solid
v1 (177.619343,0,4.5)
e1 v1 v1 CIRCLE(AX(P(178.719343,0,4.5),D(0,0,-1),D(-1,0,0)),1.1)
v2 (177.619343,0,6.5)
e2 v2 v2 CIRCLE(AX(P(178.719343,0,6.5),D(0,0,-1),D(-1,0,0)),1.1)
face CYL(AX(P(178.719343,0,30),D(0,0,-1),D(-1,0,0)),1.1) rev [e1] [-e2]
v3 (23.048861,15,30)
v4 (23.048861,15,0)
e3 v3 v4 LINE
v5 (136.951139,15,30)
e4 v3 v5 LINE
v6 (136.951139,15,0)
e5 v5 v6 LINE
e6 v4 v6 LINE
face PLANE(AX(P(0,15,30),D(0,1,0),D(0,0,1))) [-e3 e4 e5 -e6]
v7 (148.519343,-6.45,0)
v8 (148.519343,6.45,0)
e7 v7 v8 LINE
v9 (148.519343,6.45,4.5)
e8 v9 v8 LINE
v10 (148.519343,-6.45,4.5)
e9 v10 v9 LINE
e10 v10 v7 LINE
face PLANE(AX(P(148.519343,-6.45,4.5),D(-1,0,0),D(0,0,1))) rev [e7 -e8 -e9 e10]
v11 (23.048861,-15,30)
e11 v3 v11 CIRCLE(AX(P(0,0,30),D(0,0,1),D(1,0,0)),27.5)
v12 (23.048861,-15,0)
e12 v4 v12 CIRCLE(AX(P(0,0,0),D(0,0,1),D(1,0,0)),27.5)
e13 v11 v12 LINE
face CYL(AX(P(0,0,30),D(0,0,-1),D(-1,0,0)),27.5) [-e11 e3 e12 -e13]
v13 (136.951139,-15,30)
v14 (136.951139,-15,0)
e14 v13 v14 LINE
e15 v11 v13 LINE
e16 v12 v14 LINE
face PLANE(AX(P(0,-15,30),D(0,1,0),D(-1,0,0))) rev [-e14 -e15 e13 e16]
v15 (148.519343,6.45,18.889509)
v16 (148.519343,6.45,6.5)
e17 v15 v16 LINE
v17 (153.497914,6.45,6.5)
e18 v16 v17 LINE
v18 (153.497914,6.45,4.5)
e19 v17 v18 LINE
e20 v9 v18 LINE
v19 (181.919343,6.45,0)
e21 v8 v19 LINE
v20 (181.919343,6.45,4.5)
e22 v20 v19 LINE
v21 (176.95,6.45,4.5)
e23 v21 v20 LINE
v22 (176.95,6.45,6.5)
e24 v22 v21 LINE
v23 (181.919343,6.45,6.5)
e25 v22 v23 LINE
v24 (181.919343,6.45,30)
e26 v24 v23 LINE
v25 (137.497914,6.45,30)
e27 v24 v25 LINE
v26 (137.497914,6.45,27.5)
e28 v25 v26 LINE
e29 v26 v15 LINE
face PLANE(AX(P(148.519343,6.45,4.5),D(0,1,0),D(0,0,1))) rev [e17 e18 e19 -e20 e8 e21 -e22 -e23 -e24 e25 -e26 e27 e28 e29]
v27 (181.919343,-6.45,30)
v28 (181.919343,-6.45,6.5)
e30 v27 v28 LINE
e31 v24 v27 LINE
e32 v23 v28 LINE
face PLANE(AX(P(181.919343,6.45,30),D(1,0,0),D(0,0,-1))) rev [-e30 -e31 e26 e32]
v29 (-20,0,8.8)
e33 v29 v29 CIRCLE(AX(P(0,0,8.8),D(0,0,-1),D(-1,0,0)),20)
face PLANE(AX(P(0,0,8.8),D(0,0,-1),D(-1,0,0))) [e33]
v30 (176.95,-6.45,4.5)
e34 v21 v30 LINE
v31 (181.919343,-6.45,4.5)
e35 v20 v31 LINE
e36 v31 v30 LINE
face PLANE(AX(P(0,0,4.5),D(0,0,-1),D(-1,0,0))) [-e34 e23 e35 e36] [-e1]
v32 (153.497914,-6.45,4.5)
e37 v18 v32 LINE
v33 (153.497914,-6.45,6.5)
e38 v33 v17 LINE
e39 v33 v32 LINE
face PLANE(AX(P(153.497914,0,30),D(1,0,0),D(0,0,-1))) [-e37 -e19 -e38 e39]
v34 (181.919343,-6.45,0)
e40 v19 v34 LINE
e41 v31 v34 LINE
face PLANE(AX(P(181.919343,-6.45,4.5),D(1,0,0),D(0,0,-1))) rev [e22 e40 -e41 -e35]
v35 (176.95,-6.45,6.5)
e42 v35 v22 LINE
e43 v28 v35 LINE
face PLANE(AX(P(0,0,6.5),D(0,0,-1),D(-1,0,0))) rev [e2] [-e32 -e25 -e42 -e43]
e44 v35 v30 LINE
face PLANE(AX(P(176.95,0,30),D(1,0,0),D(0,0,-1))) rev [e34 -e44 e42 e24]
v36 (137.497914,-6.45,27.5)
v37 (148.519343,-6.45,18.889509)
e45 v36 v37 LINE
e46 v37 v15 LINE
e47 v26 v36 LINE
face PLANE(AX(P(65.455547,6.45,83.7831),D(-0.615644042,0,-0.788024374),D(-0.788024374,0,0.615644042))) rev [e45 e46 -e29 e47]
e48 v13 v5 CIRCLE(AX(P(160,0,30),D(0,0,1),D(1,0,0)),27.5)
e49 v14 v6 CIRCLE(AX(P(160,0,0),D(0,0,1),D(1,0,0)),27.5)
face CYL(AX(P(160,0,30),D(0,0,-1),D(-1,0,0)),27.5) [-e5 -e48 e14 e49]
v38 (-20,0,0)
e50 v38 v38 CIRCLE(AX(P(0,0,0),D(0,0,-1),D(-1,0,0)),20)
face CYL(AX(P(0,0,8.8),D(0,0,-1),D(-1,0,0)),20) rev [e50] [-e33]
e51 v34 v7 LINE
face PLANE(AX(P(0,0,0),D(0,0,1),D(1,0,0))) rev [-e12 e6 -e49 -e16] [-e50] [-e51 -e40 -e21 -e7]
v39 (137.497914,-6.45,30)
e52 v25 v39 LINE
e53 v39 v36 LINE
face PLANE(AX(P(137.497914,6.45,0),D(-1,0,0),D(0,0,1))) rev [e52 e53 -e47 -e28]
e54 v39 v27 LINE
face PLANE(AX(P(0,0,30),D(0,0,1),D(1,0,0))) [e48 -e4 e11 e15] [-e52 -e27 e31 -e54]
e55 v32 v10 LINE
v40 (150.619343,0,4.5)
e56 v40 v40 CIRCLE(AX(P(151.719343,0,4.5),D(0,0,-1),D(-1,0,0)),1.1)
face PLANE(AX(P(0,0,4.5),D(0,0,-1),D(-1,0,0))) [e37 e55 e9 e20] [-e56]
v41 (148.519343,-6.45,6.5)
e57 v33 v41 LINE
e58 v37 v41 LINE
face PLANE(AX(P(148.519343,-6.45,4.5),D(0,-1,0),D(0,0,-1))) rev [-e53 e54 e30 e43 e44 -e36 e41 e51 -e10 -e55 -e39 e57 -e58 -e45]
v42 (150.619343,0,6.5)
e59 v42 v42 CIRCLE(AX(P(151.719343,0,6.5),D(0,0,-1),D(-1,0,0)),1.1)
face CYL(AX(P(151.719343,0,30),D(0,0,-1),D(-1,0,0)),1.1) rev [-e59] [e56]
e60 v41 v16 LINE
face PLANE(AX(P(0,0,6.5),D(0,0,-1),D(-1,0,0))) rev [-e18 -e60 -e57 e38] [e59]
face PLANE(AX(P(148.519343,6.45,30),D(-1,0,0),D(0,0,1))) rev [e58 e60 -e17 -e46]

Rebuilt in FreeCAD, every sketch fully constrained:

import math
import FreeCAD as App
import Part
import Sketcher

V = App.Vector
Q = App.Units.Quantity

doc = App.newDocument("Part")
params = doc.addObject("Spreadsheet::Sheet", "Params")
for row, (alias, value) in enumerate([
    ("sketch1_radius", "27.5 mm"),
    ("pad1_length", "30 mm"),
    ("sketch2_width", "33.4 mm"),
    ("sketch2_height", "12.9 mm"),
    ("pocket1_length", "4.5 mm"),
    ("sketch3_height", "12.9 mm"),
    ("sketch4_width", "16 mm"),
    ("sketch4_height", "15 mm"),
    ("sketch4_height2", "2.5 mm"),
    ("pocket3_length", "12.9 mm"),
    ("sketch5_diameter", "40 mm"),
    ("pocket4_length", "8.8 mm"),
    ("sketch6_width", "33.4 mm"),
    ("sketch6_height", "12.9 mm"),
    ("sketch7_diameter", "2.2 mm"),
], start=1):
    params.set(f"A{row}", alias)
    params.set(f"B{row}", "=" + value)
    params.setAlias(f"B{row}", alias)

body = doc.addObject("PartDesign::Body", "Body")

# Sketch on XY plane
sketch1 = body.newObject("Sketcher::SketchObject", "Sketch")
sketch1.AttachmentSupport = (doc.getObject("XY_Plane"), [""])
sketch1.MapMode = "FlatFace"
sketch1.addGeometry([
    Part.LineSegment(V(23, -15, 0), V(137, -15, 0)),  # 0
    Part.ArcOfCircle(Part.Circle(V(160, 0, 0), V(0, 0, 1), 28), math.radians(-147), math.radians(0)),  # 1
    Part.ArcOfCircle(Part.Circle(V(160, 0, 0), V(0, 0, 1), 28), math.radians(0), math.radians(147)),  # 2
    Part.LineSegment(V(137, 15, 0), V(23, 15, 0)),  # 3
    Part.ArcOfCircle(Part.Circle(V(0, 0, 0), V(0, 0, 1), 28), math.radians(33), math.radians(327)),  # 4
], False)
sketch1.addConstraint([
    Sketcher.Constraint("Coincident", 0, 2, 1, 1),
    Sketcher.Constraint("Tangent", 1, 2, 2, 1),
    Sketcher.Constraint("Coincident", 2, 2, 3, 1),
    Sketcher.Constraint("Coincident", 3, 2, 4, 1),
    Sketcher.Constraint("Coincident", 4, 2, 0, 1),
    Sketcher.Constraint("Horizontal", 0),
    Sketcher.Constraint("Horizontal", 3),
    Sketcher.Constraint("Coincident", 4, 3, -1, 1),
    Sketcher.Constraint("Equal", 1, 2),
    Sketcher.Constraint("Equal", 2, 4),
    Sketcher.Constraint("Symmetric", 0, 2, 2, 2, -1),
    Sketcher.Constraint("PointOnObject", 1, 2, -1),
    Sketcher.Constraint("Radius", 1, Q("27.5 mm")),
    Sketcher.Constraint("DistanceX", -1, 1, 1, 3, Q("160 mm")),
    Sketcher.Constraint("DistanceY", 0, 2, -1, 1, Q("15 mm")),
])
sketch1.setExpression("Constraints[12]", "Params.sketch1_radius")
pad1 = body.newObject("PartDesign::Pad", "Pad")
pad1.Profile = sketch1
pad1.setExpression("Length", "Params.pad1_length")

# Sketch on XY plane
sketch2 = body.newObject("Sketcher::SketchObject", "Sketch001")
sketch2.AttachmentSupport = (doc.getObject("XY_Plane"), [""])
sketch2.MapMode = "FlatFace"
sketch2.addGeometry([
    Part.LineSegment(V(182, 6, 0), V(182, -6, 0)),
    Part.LineSegment(V(182, -6, 0), V(149, -6, 0)),
    Part.LineSegment(V(149, -6, 0), V(149, 6, 0)),
    Part.LineSegment(V(149, 6, 0), V(182, 6, 0)),
], False)
sketch2.addConstraint([
    Sketcher.Constraint("Coincident", 0, 2, 1, 1),
    Sketcher.Constraint("Coincident", 1, 2, 2, 1),
    Sketcher.Constraint("Coincident", 2, 2, 3, 1),
    Sketcher.Constraint("Coincident", 3, 2, 0, 1),
    Sketcher.Constraint("Vertical", 0),
    Sketcher.Constraint("Horizontal", 1),
    Sketcher.Constraint("Vertical", 2),
    Sketcher.Constraint("Horizontal", 3),
    Sketcher.Constraint("DistanceX", 1, 2, 1, 1, Q("33.4 mm")),
    Sketcher.Constraint("DistanceY", 0, 2, 0, 1, Q("12.9 mm")),
    Sketcher.Constraint("DistanceY", 0, 2, -1, 1, Q("6.45 mm")),
    Sketcher.Constraint("DistanceX", -1, 1, 0, 2, Q("181.919343 mm")),
])
sketch2.setExpression("Constraints[8]", "Params.sketch2_width")
sketch2.setExpression("Constraints[9]", "Params.sketch2_height")
pocket1 = body.newObject("PartDesign::Pocket", "Pocket")
pocket1.Profile = sketch2
pocket1.setExpression("Length", "Params.pocket1_length")
pocket1.Reversed = True

# Sketch on XY plane
sketch3 = body.newObject("Sketcher::SketchObject", "Sketch002")
sketch3.AttachmentSupport = (doc.getObject("XY_Plane"), [""])
sketch3.MapMode = "FlatFace"
sketch3.addGeometry([
    Part.LineSegment(V(177, 6, 0), V(177, -6, 0)),
    Part.LineSegment(V(177, -6, 0), V(153, -6, 0)),
    Part.LineSegment(V(153, -6, 0), V(153, 6, 0)),
    Part.LineSegment(V(153, 6, 0), V(177, 6, 0)),
], False)
sketch3.addConstraint([
    Sketcher.Constraint("Coincident", 0, 2, 1, 1),
    Sketcher.Constraint("Coincident", 1, 2, 2, 1),
    Sketcher.Constraint("Coincident", 2, 2, 3, 1),
    Sketcher.Constraint("Coincident", 3, 2, 0, 1),
    Sketcher.Constraint("Vertical", 0),
    Sketcher.Constraint("Horizontal", 1),
    Sketcher.Constraint("Vertical", 2),
    Sketcher.Constraint("Horizontal", 3),
    Sketcher.Constraint("DistanceY", 0, 2, 0, 1, Q("12.9 mm")),
    Sketcher.Constraint("DistanceX", -1, 1, 0, 2, Q("176.95 mm")),
    Sketcher.Constraint("DistanceY", 0, 2, -1, 1, Q("6.45 mm")),
    Sketcher.Constraint("DistanceX", 1, 2, 1, 1, Q("23.452086 mm")),
])
sketch3.setExpression("Constraints[8]", "Params.sketch3_height")
pocket2 = body.newObject("PartDesign::Pocket", "Pocket001")
pocket2.Profile = sketch3
pocket2.Type = "ThroughAll"
pocket2.Reversed = True

# Sketch on XZ plane
sketch4 = body.newObject("Sketcher::SketchObject", "Sketch003")
sketch4.AttachmentSupport = (doc.getObject("XZ_Plane"), [""])
sketch4.MapMode = "FlatFace"
sketch4.addGeometry([
    Part.LineSegment(V(153.5, 15, 0), V(153.5, 30, 0)),
    Part.LineSegment(V(153.5, 30, 0), V(137.5, 30, 0)),
    Part.LineSegment(V(137.5, 30, 0), V(137.5, 27.5, 0)),
    Part.LineSegment(V(137.5, 27.5, 0), V(153.5, 15, 0)),
], False)
sketch4.addConstraint([
    Sketcher.Constraint("Coincident", 0, 2, 1, 1),
    Sketcher.Constraint("Coincident", 1, 2, 2, 1),
    Sketcher.Constraint("Coincident", 2, 2, 3, 1),
    Sketcher.Constraint("Coincident", 3, 2, 0, 1),
    Sketcher.Constraint("Vertical", 0),
    Sketcher.Constraint("Horizontal", 1),
    Sketcher.Constraint("Vertical", 2),
    Sketcher.Constraint("DistanceX", 1, 2, 1, 1, Q("16 mm")),
    Sketcher.Constraint("DistanceY", 0, 1, 0, 2, Q("15 mm")),
    Sketcher.Constraint("DistanceY", 2, 2, 2, 1, Q("2.5 mm")),
    Sketcher.Constraint("DistanceY", -1, 1, 0, 2, Q("30 mm")),
    Sketcher.Constraint("DistanceX", -1, 1, 0, 2, Q("153.497914 mm")),
])
sketch4.setExpression("Constraints[7]", "Params.sketch4_width")
sketch4.setExpression("Constraints[8]", "Params.sketch4_height")
sketch4.setExpression("Constraints[9]", "Params.sketch4_height2")
pocket3 = body.newObject("PartDesign::Pocket", "Pocket002")
pocket3.Profile = sketch4
pocket3.setExpression("Length", "Params.pocket3_length")
pocket3.Midplane = True

# Sketch on XY plane
sketch5 = body.newObject("Sketcher::SketchObject", "Sketch004")
sketch5.AttachmentSupport = (doc.getObject("XY_Plane"), [""])
sketch5.MapMode = "FlatFace"
sketch5.addGeometry(Part.Circle(V(0, 0, 0), V(0, 0, 1), 20), False)
sketch5.addConstraint([
    Sketcher.Constraint("Coincident", 0, 3, -1, 1),
    Sketcher.Constraint("Diameter", 0, Q("40 mm")),
])
sketch5.setExpression("Constraints[1]", "Params.sketch5_diameter")
pocket4 = body.newObject("PartDesign::Pocket", "Pocket003")
pocket4.Profile = sketch5
pocket4.setExpression("Length", "Params.pocket4_length")
pocket4.Reversed = True

# Sketch on XY plane
sketch6 = body.newObject("Sketcher::SketchObject", "Sketch005")
sketch6.AttachmentSupport = (doc.getObject("XY_Plane"), [""])
sketch6.MapMode = "FlatFace"
sketch6.AttachmentOffset = App.Placement(V(0, 0, 6.5), App.Rotation())
sketch6.addGeometry([
    Part.LineSegment(V(182, 6, 0), V(182, -6, 0)),
    Part.LineSegment(V(182, -6, 0), V(149, -6, 0)),
    Part.LineSegment(V(149, -6, 0), V(149, 6, 0)),
    Part.LineSegment(V(149, 6, 0), V(182, 6, 0)),
], False)
sketch6.addConstraint([
    Sketcher.Constraint("Coincident", 0, 2, 1, 1),
    Sketcher.Constraint("Coincident", 1, 2, 2, 1),
    Sketcher.Constraint("Coincident", 2, 2, 3, 1),
    Sketcher.Constraint("Coincident", 3, 2, 0, 1),
    Sketcher.Constraint("Vertical", 0),
    Sketcher.Constraint("Horizontal", 1),
    Sketcher.Constraint("Vertical", 2),
    Sketcher.Constraint("Horizontal", 3),
    Sketcher.Constraint("DistanceX", 1, 2, 1, 1, Q("33.4 mm")),
    Sketcher.Constraint("DistanceY", 0, 2, 0, 1, Q("12.9 mm")),
    Sketcher.Constraint("DistanceY", 0, 2, -1, 1, Q("6.45 mm")),
    Sketcher.Constraint("DistanceX", -1, 1, 0, 2, Q("181.919343 mm")),
])
sketch6.setExpression("Constraints[8]", "Params.sketch6_width")
sketch6.setExpression("Constraints[9]", "Params.sketch6_height")
pocket5 = body.newObject("PartDesign::Pocket", "Pocket004")
pocket5.Profile = sketch6
pocket5.Type = "ThroughAll"
pocket5.Reversed = True

# Sketch on XY plane
sketch7 = body.newObject("Sketcher::SketchObject", "Sketch006")
sketch7.AttachmentSupport = (doc.getObject("XY_Plane"), [""])
sketch7.MapMode = "FlatFace"
sketch7.addGeometry([
    Part.Circle(V(151.7, 0, 0), V(0, 0, 1), 1.1),
    Part.Circle(V(178.7, 0, 0), V(0, 0, 1), 1.1),
], False)
sketch7.addConstraint([
    Sketcher.Constraint("Equal", 0, 1),
    Sketcher.Constraint("PointOnObject", 0, 3, -1),
    Sketcher.Constraint("PointOnObject", 1, 3, -1),
    Sketcher.Constraint("Diameter", 0, Q("2.2 mm")),
    Sketcher.Constraint("DistanceX", 0, 3, 1, 3, Q("27 mm")),
    Sketcher.Constraint("DistanceX", -1, 1, 0, 3, Q("151.719343 mm")),
])
sketch7.setExpression("Constraints[3]", "Params.sketch7_diameter")
pocket6 = body.newObject("PartDesign::Pocket", "Pocket005")
pocket6.Profile = sketch7
pocket6.Type = "ThroughAll"
pocket6.Reversed = True

doc.recompute()
